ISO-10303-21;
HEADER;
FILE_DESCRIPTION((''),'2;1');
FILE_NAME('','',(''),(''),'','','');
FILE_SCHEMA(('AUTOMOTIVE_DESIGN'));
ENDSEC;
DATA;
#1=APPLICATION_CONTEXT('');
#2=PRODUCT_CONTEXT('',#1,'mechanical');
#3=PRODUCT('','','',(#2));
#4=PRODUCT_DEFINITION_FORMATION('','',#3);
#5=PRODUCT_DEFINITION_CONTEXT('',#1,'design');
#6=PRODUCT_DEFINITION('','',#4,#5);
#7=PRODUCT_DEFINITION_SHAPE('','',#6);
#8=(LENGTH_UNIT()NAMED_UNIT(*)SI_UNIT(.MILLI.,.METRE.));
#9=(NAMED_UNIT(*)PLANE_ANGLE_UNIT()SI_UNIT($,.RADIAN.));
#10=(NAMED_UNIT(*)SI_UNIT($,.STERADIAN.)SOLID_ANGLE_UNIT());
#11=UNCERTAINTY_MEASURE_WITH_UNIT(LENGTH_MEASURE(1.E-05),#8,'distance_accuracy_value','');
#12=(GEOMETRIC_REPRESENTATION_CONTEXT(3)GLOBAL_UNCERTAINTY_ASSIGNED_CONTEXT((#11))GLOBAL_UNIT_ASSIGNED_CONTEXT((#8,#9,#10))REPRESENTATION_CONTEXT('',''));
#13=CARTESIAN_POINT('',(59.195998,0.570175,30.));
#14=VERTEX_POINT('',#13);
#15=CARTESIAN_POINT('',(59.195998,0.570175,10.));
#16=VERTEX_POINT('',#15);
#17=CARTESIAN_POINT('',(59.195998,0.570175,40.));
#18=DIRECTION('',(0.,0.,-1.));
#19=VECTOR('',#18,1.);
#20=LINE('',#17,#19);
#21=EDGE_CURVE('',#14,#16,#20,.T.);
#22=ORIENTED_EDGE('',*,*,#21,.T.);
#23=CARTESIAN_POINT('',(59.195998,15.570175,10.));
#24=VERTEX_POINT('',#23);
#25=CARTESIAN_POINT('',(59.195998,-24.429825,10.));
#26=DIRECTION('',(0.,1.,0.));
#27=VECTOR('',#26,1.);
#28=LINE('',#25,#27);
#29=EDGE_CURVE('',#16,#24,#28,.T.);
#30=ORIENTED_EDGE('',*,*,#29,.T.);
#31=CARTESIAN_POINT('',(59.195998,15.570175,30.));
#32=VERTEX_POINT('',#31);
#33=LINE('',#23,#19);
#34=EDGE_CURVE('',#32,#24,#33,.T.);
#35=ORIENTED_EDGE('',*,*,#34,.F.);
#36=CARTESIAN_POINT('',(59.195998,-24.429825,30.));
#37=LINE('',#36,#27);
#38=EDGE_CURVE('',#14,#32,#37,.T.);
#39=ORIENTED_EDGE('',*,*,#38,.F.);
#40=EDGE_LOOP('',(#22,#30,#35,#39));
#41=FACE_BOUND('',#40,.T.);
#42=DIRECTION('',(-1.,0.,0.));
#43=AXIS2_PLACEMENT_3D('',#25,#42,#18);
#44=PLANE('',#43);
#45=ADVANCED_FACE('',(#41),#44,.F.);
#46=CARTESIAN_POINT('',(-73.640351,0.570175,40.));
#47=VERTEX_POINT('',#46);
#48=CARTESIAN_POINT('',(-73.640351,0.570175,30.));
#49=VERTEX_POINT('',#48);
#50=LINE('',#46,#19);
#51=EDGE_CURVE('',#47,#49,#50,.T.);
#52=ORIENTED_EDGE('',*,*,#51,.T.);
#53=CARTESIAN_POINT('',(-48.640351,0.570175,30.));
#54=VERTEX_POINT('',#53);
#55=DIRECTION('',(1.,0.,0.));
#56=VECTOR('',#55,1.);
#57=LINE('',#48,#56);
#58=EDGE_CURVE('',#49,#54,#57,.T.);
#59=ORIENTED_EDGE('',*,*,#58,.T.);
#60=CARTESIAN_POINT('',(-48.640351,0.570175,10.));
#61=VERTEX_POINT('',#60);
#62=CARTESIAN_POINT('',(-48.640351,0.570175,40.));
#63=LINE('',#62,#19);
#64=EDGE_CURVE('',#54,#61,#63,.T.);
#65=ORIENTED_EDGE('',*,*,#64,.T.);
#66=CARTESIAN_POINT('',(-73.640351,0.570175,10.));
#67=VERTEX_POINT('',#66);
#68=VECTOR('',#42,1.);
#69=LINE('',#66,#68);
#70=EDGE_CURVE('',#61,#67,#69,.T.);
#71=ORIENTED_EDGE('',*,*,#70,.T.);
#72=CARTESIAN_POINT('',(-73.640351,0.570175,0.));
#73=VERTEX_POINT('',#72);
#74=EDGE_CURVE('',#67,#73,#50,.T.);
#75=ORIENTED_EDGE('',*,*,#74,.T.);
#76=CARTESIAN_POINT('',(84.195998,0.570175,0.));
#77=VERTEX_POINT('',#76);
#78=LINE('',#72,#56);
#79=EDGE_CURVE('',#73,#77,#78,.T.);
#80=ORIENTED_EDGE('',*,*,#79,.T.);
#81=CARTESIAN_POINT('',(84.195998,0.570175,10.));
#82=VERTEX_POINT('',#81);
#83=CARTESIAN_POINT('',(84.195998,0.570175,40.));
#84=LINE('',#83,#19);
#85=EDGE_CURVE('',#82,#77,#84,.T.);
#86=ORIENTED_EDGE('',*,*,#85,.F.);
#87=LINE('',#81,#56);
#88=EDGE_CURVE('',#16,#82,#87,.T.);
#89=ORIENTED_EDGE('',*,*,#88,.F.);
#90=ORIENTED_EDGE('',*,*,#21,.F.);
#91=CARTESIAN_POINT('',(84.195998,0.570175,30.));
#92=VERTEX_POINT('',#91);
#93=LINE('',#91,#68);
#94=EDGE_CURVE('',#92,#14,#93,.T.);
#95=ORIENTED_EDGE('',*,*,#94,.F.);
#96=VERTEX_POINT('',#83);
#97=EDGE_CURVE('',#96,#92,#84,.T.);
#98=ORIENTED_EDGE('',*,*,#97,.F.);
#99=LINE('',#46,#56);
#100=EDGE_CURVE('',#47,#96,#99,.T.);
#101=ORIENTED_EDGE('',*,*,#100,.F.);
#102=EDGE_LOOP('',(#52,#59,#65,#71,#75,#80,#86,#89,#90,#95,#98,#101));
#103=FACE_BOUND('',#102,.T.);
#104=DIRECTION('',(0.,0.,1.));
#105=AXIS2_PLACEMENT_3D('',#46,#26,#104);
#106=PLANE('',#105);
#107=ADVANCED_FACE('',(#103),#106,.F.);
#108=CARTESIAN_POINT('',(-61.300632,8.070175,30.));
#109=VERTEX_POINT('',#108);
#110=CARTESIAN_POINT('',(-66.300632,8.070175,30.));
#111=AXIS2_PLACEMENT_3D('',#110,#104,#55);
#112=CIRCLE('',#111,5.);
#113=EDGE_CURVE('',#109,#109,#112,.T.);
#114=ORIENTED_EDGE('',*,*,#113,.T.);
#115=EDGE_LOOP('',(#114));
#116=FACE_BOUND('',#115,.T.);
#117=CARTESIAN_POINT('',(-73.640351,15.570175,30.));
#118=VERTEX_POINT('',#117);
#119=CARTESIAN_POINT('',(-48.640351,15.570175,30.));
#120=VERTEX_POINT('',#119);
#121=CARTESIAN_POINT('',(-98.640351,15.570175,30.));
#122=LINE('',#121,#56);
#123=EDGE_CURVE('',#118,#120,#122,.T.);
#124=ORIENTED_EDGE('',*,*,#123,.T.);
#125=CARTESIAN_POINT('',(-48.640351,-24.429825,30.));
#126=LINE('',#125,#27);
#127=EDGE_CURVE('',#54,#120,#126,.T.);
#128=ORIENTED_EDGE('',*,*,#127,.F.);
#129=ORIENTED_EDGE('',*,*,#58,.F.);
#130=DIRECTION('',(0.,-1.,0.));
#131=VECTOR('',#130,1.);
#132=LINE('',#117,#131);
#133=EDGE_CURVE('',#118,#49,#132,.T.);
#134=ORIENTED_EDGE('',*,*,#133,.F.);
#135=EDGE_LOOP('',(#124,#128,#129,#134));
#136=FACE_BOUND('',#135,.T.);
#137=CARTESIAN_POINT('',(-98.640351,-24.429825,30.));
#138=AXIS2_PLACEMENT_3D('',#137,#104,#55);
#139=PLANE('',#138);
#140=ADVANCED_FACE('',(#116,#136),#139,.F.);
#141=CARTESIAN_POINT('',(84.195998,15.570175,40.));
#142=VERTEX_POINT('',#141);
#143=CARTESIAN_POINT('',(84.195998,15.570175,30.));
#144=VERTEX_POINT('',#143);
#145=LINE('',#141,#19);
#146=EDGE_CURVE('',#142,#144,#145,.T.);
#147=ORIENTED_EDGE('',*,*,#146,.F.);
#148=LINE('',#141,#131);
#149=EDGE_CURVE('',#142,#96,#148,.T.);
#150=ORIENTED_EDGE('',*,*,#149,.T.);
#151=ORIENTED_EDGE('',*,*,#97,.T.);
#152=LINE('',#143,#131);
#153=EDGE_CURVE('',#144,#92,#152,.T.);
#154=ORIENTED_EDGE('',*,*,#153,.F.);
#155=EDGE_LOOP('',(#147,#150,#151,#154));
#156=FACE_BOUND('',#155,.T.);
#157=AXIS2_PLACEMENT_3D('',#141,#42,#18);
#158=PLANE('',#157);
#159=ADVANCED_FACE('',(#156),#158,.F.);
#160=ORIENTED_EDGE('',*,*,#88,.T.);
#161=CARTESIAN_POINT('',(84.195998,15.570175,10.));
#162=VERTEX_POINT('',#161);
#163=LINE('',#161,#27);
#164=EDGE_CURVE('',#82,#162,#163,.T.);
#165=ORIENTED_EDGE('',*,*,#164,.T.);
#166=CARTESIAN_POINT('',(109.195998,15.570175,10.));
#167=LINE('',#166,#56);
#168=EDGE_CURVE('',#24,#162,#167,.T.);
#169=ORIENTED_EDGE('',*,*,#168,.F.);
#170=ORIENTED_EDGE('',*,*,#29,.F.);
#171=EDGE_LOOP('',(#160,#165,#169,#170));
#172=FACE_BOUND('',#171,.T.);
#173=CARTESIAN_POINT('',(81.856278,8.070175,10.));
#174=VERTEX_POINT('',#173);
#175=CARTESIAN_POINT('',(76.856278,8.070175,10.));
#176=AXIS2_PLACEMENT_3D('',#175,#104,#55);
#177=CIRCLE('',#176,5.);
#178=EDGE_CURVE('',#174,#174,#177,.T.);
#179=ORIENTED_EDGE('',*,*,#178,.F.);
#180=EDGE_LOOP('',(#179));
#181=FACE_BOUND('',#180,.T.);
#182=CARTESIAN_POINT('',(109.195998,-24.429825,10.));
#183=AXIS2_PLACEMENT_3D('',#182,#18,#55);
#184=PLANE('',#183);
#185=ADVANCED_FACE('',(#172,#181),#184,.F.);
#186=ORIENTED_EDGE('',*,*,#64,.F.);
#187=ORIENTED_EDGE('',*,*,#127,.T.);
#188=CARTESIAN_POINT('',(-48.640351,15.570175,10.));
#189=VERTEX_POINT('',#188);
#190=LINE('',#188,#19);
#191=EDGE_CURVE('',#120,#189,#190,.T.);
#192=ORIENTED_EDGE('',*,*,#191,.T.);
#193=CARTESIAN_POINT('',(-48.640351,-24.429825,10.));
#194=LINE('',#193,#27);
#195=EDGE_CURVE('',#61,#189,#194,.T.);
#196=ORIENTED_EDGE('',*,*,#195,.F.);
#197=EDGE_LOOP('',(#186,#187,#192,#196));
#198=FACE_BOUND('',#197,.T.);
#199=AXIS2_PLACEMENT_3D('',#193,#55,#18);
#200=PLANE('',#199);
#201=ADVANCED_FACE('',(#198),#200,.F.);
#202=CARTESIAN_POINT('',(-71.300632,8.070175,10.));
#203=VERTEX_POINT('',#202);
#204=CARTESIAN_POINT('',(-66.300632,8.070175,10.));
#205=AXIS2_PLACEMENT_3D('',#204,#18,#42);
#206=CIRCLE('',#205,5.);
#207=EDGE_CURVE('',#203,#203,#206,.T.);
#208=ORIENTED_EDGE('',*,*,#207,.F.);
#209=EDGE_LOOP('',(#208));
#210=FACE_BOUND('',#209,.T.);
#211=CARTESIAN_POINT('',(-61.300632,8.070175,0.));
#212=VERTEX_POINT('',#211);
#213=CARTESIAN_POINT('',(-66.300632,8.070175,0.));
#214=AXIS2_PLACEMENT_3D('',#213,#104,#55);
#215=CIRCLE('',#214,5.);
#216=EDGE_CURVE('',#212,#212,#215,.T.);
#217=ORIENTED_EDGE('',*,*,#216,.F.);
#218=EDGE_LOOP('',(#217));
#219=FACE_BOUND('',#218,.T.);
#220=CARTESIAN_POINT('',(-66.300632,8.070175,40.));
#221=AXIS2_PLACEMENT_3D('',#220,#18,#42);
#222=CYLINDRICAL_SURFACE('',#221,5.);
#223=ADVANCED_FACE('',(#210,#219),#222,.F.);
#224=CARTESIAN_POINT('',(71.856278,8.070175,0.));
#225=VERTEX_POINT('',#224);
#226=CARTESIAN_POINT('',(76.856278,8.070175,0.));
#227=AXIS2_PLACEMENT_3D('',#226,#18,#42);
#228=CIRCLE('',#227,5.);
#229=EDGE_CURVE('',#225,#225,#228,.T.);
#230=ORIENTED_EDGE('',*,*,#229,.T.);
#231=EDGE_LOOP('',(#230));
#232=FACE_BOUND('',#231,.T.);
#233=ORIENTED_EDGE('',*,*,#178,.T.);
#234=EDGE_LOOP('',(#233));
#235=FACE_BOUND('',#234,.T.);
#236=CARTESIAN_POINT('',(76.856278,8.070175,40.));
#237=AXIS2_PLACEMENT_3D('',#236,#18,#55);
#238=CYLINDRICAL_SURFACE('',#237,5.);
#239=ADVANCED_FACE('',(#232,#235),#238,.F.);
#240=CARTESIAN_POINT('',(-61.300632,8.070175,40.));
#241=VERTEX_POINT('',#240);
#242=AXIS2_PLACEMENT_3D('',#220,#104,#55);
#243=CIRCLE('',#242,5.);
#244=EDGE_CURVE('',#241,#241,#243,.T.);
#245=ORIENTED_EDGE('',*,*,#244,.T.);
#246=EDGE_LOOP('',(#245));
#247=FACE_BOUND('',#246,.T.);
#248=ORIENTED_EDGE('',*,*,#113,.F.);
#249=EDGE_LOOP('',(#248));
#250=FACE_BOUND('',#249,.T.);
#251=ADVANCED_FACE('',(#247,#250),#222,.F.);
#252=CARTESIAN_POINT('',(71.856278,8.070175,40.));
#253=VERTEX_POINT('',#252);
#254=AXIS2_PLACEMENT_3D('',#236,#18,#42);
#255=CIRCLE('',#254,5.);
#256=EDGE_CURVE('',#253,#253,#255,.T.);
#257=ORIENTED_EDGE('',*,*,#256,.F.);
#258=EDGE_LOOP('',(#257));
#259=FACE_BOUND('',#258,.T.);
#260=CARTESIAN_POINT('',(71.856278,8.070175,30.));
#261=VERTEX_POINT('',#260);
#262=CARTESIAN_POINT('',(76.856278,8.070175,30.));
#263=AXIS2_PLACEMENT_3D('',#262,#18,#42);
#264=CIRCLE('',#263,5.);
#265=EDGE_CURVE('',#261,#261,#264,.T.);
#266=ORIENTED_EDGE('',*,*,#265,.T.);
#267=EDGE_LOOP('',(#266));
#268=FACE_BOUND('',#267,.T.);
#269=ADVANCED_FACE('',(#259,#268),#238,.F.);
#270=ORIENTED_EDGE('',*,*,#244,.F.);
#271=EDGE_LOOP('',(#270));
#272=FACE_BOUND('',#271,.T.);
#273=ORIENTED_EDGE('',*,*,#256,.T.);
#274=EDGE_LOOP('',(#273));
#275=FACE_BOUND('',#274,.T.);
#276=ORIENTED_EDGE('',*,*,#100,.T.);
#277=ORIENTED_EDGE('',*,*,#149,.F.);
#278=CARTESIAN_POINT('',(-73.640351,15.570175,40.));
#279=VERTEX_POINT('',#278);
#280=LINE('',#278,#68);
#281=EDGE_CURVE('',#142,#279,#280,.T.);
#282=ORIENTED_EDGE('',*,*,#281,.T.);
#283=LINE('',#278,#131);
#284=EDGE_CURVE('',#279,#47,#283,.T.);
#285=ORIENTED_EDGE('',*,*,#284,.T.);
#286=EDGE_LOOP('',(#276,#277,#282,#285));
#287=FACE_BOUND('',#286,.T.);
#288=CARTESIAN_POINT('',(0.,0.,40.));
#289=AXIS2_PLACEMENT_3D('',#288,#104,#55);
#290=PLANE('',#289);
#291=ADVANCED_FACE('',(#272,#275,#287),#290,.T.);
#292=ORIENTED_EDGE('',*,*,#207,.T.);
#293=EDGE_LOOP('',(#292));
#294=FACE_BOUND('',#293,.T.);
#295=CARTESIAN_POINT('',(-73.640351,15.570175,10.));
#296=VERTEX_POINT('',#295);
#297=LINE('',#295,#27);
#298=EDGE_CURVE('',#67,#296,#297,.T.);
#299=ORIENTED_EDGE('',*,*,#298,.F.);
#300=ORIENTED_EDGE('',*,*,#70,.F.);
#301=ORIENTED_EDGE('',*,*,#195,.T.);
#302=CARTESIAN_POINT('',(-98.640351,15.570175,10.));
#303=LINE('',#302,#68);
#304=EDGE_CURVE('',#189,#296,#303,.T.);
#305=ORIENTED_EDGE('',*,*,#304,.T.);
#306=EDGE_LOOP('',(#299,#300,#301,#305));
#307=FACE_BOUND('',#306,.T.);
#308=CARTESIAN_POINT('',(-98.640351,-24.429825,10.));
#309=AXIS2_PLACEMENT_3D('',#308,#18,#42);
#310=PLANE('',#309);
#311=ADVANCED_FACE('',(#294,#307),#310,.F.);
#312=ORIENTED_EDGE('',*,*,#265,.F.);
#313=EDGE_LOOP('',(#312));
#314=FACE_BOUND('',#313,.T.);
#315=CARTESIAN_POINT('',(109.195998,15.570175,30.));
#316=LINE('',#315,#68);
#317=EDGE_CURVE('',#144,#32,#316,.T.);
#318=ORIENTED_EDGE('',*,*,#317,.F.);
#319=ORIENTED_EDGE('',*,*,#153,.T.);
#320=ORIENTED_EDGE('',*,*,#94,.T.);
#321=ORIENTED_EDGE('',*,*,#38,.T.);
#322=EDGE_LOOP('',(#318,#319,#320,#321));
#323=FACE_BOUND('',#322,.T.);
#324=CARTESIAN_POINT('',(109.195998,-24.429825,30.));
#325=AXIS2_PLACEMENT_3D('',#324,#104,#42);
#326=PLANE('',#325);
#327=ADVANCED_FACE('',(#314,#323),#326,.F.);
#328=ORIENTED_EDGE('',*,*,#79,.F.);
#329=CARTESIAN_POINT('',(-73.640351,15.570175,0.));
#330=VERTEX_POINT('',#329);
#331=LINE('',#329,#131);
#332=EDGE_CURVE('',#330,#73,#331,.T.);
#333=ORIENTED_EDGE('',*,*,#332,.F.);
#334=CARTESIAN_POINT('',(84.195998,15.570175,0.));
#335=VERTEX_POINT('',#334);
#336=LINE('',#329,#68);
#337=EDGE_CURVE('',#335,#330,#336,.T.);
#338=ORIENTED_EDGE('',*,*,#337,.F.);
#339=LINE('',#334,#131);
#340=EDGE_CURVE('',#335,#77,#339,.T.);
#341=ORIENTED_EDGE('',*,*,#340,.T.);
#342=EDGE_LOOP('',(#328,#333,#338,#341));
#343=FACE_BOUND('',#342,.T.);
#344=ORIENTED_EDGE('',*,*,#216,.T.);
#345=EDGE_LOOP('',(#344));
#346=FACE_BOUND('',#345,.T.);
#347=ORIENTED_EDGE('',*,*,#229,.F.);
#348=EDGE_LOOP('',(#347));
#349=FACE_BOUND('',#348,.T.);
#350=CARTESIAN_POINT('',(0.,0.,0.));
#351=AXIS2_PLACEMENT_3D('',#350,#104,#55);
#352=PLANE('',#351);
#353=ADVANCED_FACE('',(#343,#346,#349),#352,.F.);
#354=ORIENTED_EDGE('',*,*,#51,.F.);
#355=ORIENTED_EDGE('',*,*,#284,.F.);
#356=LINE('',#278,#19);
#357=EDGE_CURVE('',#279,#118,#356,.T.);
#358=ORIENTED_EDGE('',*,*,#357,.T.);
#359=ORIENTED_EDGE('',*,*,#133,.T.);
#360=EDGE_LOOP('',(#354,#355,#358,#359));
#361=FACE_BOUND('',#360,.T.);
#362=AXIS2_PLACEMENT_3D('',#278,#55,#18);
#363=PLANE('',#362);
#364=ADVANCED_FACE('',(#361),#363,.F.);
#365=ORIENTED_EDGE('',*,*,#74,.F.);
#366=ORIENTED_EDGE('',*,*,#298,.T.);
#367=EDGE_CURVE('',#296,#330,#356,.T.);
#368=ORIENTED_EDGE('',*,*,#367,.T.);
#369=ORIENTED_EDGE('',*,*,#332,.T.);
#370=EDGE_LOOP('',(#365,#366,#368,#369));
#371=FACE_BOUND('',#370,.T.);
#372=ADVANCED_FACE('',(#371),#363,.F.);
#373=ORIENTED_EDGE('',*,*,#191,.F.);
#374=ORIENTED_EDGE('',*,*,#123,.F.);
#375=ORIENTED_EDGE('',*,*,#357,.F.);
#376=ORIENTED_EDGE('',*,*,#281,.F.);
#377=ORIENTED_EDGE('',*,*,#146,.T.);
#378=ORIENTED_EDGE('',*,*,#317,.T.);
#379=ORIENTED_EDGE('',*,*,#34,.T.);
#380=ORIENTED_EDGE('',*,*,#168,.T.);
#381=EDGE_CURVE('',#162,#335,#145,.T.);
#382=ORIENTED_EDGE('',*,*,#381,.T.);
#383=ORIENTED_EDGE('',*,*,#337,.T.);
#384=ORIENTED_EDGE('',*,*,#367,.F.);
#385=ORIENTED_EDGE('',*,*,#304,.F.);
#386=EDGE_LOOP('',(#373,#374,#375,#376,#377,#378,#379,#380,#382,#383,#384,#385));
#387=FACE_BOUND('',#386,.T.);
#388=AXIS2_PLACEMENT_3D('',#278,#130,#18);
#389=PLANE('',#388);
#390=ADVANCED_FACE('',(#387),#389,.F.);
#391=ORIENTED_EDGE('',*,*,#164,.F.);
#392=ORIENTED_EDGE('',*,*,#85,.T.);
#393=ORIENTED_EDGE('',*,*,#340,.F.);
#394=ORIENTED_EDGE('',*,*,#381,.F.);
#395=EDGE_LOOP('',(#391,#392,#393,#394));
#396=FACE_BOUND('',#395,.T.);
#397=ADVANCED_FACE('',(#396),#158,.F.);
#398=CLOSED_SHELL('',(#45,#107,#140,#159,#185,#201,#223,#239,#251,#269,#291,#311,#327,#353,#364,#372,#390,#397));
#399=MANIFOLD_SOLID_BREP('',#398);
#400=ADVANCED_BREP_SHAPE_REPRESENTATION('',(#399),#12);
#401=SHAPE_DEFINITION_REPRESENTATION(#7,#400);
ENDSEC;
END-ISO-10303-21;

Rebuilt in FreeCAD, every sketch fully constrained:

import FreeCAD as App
import Part
import Sketcher

V = App.Vector
Q = App.Units.Quantity

doc = App.newDocument("Part")
params = doc.addObject("Spreadsheet::Sheet", "Params")
for row, (alias, value) in enumerate([
    ("sketch1_diameter", "10 mm"),
    ("sketch1_width", "200 mm"),
    ("sketch1_height", "15 mm"),
    ("pad1_length", "40 mm"),
    ("sketch2_width", "50 mm"),
    ("sketch2_height", "20 mm"),
    ("pocket1_length", "40 mm"),
    ("pocket2_length", "40 mm"),
], start=1):
    params.set(f"A{row}", alias)
    params.set(f"B{row}", "=" + value)
    params.setAlias(f"B{row}", alias)

body = doc.addObject("PartDesign::Body", "Body")

# Sketch on XY plane
sketch1 = body.newObject("Sketcher::SketchObject", "Sketch")
sketch1.AttachmentSupport = (doc.getObject("XY_Plane"), [""])
sketch1.MapMode = "FlatFace"
sketch1.addGeometry([
    Part.LineSegment(V(-73.640351, 15.570175, 0), V(-73.640351, 0.570175, 0)),  # 0
    Part.LineSegment(V(-73.640351, 0.570175, 0), V(126.359649, 0.570175, 0)),  # 1
    Part.LineSegment(V(126.359649, 0.570175, 0), V(126.359649, 15.570175, 0)),  # 2
    Part.LineSegment(V(126.359649, 15.570175, 0), V(-73.640351, 15.570175, 0)),  # 3
    Part.Circle(V(-66.300632, 8.070175, 0), V(0, 0, 1), 5),  # 4
    Part.Circle(V(118.699368, 8.070175, 0), V(0, 0, 1), 5),  # 5
], False)
sketch1.addConstraint([
    Sketcher.Constraint("Coincident", 0, 2, 1, 1),
    Sketcher.Constraint("Coincident", 1, 2, 2, 1),
    Sketcher.Constraint("Coincident", 2, 2, 3, 1),
    Sketcher.Constraint("Coincident", 3, 2, 0, 1),
    Sketcher.Constraint("Vertical", 0),
    Sketcher.Constraint("Horizontal", 1),
    Sketcher.Constraint("Vertical", 2),
    Sketcher.Constraint("Horizontal", 3),
    Sketcher.Constraint("Equal", 4, 5),
    Sketcher.Constraint("Horizontal", 4, 3, 5, 3),
    Sketcher.Constraint("Diameter", 4, Q("10 mm")),
    Sketcher.Constraint("DistanceX", 1, 1, 1, 2, Q("200 mm")),
    Sketcher.Constraint("DistanceY", 0, 2, 0, 1, Q("15 mm")),
    Sketcher.Constraint("DistanceX", 4, 3, 5, 3, Q("185 mm")),
    Sketcher.Constraint("DistanceY", 0, 2, 4, 3, Q("7.5 mm")),
    Sketcher.Constraint("DistanceX", 4, 3, -1, 1, Q("66.300632 mm")),
    Sketcher.Constraint("DistanceX", 0, 2, -1, 1, Q("73.640351 mm")),
    Sketcher.Constraint("DistanceY", -1, 1, 4, 3, Q("8.070175 mm")),
])
sketch1.setExpression("Constraints[10]", "Params.sketch1_diameter")
sketch1.setExpression("Constraints[11]", "Params.sketch1_width")
sketch1.setExpression("Constraints[12]", "Params.sketch1_height")
pad1 = body.newObject("PartDesign::Pad", "Pad")
pad1.Profile = sketch1
pad1.setExpression("Length", "Params.pad1_length")

# Sketch on XZ plane
sketch2 = body.newObject("Sketcher::SketchObject", "Sketch001")
sketch2.AttachmentSupport = (doc.getObject("XZ_Plane"), [""])
sketch2.MapMode = "FlatFace"
sketch2.AttachmentOffset = App.Placement(V(0, 0, -15.570175), App.Rotation())
sketch2.addGeometry([
    Part.LineSegment(V(-98.640351, 10, 0), V(-98.640351, 30, 0)),  # 0
    Part.LineSegment(V(-98.640351, 30, 0), V(-48.640351, 30, 0)),  # 1
    Part.LineSegment(V(-48.640351, 30, 0), V(-48.640351, 10, 0)),  # 2
    Part.LineSegment(V(-48.640351, 10, 0), V(-98.640351, 10, 0)),  # 3
    Part.LineSegment(V(101.359649, 10, 0), V(101.359649, 30, 0)),  # 4
    Part.LineSegment(V(101.359649, 30, 0), V(151.359649, 30, 0)),  # 5
    Part.LineSegment(V(151.359649, 30, 0), V(151.359649, 10, 0)),  # 6
    Part.LineSegment(V(151.359649, 10, 0), V(101.359649, 10, 0)),  # 7
], False)
sketch2.addConstraint([
    Sketcher.Constraint("Coincident", 0, 2, 1, 1),
    Sketcher.Constraint("Coincident", 1, 2, 2, 1),
    Sketcher.Constraint("Coincident", 2, 2, 3, 1),
    Sketcher.Constraint("Coincident", 3, 2, 0, 1),
    Sketcher.Constraint("Coincident", 4, 2, 5, 1),
    Sketcher.Constraint("Coincident", 5, 2, 6, 1),
    Sketcher.Constraint("Coincident", 6, 2, 7, 1),
    Sketcher.Constraint("Coincident", 7, 2, 4, 1),
    Sketcher.Constraint("Vertical", 0),
    Sketcher.Constraint("Horizontal", 1),
    Sketcher.Constraint("Vertical", 2),
    Sketcher.Constraint("Horizontal", 3),
    Sketcher.Constraint("Vertical", 4),
    Sketcher.Constraint("Horizontal", 5),
    Sketcher.Constraint("Vertical", 6),
    Sketcher.Constraint("Horizontal", 7),
    Sketcher.Constraint("Horizontal", 1, 2, 4, 2),
    Sketcher.Constraint("Horizontal", 3, 2, 6, 2),
    Sketcher.Constraint("Equal", 3, 5),
    Sketcher.Constraint("DistanceX", 1, 1, 1, 2, Q("50 mm")),
    Sketcher.Constraint("DistanceY", 0, 1, 0, 2, Q("20 mm")),
    Sketcher.Constraint("DistanceY", -1, 1, 0, 2, Q("30 mm")),
    Sketcher.Constraint("DistanceX", 1, 2, 4, 2, Q("150 mm")),
    Sketcher.Constraint("DistanceX", 0, 2, -1, 1, Q("98.640351 mm")),
])
sketch2.setExpression("Constraints[19]", "Params.sketch2_width")
sketch2.setExpression("Constraints[20]", "Params.sketch2_height")
pocket1 = body.newObject("PartDesign::Pocket", "Pocket")
pocket1.Profile = sketch2
pocket1.setExpression("Length", "Params.pocket1_length")
pocket1.Reversed = True

# Sketch on XZ plane
sketch3 = body.newObject("Sketcher::SketchObject", "Sketch002")
sketch3.AttachmentSupport = (doc.getObject("XZ_Plane"), [""])
sketch3.MapMode = "FlatFace"
sketch3.AttachmentOffset = App.Placement(V(0, 0, -15.570175), App.Rotation())
sketch3.addGeometry([
    Part.LineSegment(V(5.277823, -51.150758, 0), V(5.277823, 51.150758, 0)),
    Part.LineSegment(V(5.277823, 51.150758, 0), V(247.441475, 51.150758, 0)),
    Part.LineSegment(V(247.441475, 51.150758, 0), V(247.441475, -51.150758, 0)),
    Part.LineSegment(V(247.441475, -51.150758, 0), V(5.277823, -51.150758, 0)),
], False)
sketch3.addConstraint([
    Sketcher.Constraint("Coincident", 0, 2, 1, 1),
    Sketcher.Constraint("Coincident", 1, 2, 2, 1),
    Sketcher.Constraint("Coincident", 2, 2, 3, 1),
    Sketcher.Constraint("Coincident", 3, 2, 0, 1),
    Sketcher.Constraint("Vertical", 0),
    Sketcher.Constraint("Horizontal", 1),
    Sketcher.Constraint("Vertical", 2),
    Sketcher.Constraint("Horizontal", 3),
    Sketcher.Constraint("DistanceX", 1, 1, 1, 2, Q("242.163652 mm")),
    Sketcher.Constraint("DistanceY", 0, 1, 0, 2, Q("102.301515 mm")),
    Sketcher.Constraint("DistanceX", -1, 1, 0, 2, Q("5.277823 mm")),
    Sketcher.Constraint("DistanceY", -1, 1, 0, 2, Q("51.150758 mm")),
])
pocket2 = body.newObject("PartDesign::Pocket", "Pocket001")
pocket2.Profile = sketch3
pocket2.setExpression("Length", "Params.pocket2_length")
pocket2.Reversed = True
body2 = doc.addObject("PartDesign::Body", "Body001")
doc.recompute()

body2.BaseFeature = body
doc.recompute()

mirroring = doc.addObject("Part::Mirroring", "Mirroring")
mirroring.Source = body
mirroring.Base = V(5.277823, -24.429825, -51.150758)
mirroring.Normal = V(-1, 0, 0)
body3 = doc.addObject("PartDesign::Body", "Body002")
body3.BaseFeature = mirroring
boolean = body2.newObject("PartDesign::Boolean", "Boolean")
boolean.Type = "Fuse"
boolean.addObjects([body3])
doc.recompute()
mirroring.Visibility = False

doc.recompute()
